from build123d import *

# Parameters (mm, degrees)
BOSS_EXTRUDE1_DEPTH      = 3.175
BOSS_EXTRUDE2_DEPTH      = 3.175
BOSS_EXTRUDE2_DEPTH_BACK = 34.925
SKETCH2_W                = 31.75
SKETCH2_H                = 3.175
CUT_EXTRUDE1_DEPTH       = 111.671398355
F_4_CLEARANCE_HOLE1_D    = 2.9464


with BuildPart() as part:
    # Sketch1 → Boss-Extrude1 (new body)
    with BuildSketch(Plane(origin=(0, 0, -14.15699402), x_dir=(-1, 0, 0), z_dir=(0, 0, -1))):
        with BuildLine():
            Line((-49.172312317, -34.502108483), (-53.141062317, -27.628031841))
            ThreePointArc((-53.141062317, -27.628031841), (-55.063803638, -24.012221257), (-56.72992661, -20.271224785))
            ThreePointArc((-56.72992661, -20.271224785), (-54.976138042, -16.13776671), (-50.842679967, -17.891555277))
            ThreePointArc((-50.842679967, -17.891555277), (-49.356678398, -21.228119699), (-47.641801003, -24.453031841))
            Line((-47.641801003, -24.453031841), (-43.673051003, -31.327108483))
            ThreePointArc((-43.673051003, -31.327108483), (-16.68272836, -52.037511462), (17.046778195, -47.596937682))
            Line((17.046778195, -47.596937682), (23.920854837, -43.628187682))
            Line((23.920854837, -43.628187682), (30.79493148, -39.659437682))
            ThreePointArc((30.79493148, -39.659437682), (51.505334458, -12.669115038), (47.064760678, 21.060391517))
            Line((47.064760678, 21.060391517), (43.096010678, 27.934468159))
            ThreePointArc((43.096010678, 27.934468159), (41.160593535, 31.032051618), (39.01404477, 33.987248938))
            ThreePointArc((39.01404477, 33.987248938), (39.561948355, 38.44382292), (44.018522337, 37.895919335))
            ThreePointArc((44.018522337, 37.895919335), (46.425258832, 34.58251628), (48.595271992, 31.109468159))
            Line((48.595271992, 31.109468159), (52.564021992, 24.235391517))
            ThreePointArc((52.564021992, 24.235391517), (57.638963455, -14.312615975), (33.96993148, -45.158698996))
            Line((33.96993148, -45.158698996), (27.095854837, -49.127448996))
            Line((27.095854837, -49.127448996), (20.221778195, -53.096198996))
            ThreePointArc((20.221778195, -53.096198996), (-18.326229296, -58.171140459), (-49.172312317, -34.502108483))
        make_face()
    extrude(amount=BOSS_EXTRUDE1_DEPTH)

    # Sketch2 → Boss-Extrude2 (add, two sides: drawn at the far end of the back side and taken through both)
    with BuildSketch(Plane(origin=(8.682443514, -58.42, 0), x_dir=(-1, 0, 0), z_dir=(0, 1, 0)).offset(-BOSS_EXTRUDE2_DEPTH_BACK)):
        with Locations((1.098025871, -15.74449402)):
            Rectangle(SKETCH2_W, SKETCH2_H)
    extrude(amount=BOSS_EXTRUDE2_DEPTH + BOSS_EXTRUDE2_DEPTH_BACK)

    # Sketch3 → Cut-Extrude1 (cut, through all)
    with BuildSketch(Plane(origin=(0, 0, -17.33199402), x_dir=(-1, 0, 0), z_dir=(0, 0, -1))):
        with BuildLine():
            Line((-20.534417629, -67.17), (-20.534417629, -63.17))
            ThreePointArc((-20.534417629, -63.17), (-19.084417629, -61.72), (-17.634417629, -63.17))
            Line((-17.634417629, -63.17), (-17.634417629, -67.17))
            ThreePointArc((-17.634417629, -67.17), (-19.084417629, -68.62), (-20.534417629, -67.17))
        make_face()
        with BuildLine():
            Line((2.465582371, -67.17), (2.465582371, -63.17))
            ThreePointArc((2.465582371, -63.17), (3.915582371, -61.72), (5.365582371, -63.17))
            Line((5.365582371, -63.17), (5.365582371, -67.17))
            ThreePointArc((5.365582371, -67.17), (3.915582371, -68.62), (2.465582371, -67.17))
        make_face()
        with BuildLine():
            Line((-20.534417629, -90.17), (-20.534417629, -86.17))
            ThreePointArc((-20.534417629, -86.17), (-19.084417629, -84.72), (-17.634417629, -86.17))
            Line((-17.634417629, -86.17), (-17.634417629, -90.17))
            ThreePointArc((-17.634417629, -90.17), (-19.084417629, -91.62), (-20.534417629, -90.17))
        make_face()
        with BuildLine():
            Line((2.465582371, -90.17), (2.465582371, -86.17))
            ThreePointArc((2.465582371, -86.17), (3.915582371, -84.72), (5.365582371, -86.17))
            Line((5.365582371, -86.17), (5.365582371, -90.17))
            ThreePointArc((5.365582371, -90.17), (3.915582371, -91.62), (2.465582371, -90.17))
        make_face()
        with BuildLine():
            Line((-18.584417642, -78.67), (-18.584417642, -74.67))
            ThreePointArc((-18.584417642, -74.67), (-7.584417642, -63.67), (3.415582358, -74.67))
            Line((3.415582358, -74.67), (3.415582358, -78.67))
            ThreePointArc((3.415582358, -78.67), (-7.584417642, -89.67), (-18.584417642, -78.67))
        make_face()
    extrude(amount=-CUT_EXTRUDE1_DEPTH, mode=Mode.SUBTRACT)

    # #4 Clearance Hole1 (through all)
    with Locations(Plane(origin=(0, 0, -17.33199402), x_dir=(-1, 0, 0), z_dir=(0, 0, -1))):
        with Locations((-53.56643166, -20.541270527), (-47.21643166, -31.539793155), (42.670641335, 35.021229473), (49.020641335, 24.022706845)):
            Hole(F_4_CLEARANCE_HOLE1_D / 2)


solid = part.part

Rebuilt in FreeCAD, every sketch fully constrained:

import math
import FreeCAD as App
import Part
import Sketcher

V = App.Vector
Q = App.Units.Quantity

doc = App.newDocument("Part")
params = doc.addObject("Spreadsheet::Sheet", "Params")
for row, (alias, value) in enumerate([
    ("sketch1_radius", "2 in"),
    ("sketch1_radius2", "1.75 in"),
    ("sketch1_radius3", "2.3125 in"),
    ("pad1_length", "0.125 in"),
    ("sketch2_width", "1.25 in"),
    ("sketch2_height", "0.125 in"),
    ("pad2_length", "0.125 in"),
    ("pad2_length2", "1.375 in"),
    ("sketch4_diameter", "0.116 in"),
    ("hole_diameter", "0.116 in"),
], start=1):
    params.set(f"A{row}", alias)
    params.set(f"B{row}", "=" + value)
    params.setAlias(f"B{row}", alias)

body = doc.addObject("PartDesign::Body", "Body")

# Sketch on XY plane
sketch1 = body.newObject("Sketcher::SketchObject", "Sketch")
sketch1.AttachmentSupport = (doc.getObject("XY_Plane"), [""])
sketch1.MapMode = "FlatFace"
sketch1.AttachmentOffset = App.Placement(V(0, 0, -14.156994), App.Rotation())
sketch1.addGeometry(Part.LineSegment(V(53.1, -27.6, 0), V(49.2, -34.5, 0)), False)
sketch1.addGeometry(Part.ArcOfCircle(Part.Circle(V(5.2, -9.1, 0), V(0, 0, 1), 50.8), math.radians(-120), math.radians(-30)), False)
sketch1.addGeometry(Part.LineSegment(V(-20.2, -53.1, 0), V(-27.1, -49.1, 0)), False)
sketch1.addGeometry(Part.LineSegment(V(-27.1, -49.1, 0), V(-34, -45.2, 0)), False)
sketch1.addGeometry(Part.ArcOfCircle(Part.Circle(V(-8.6, -1.2, 0), V(0, 0, 1), 50.8), math.radians(150), math.radians(240)), False)
sketch1.addGeometry(Part.LineSegment(V(-52.6, 24.2, 0), V(-48.6, 31.1, 0)), False)
sketch1.addGeometry(Part.ArcOfCircle(Part.Circle(V(2.3, 1.7, 0), V(0, 0, 1), 58.7), math.radians(142.01), math.radians(150)), False)
sketch1.addGeometry(Part.ArcOfCircle(Part.Circle(V(-41.5, 35.9, 0), V(0, 0, 1), 3.2), math.radians(-38), math.radians(142)), False)
sketch1.addGeometry(Part.ArcOfCircle(Part.Circle(V(2.3, 1.7, 0), V(0, 0, 1), 52.4), math.radians(142.01), math.radians(150)), False)
sketch1.addGeometry(Part.LineSegment(V(-43.1, 27.9, 0), V(-47.1, 21.1, 0)), False)
sketch1.addGeometry(Part.ArcOfCircle(Part.Circle(V(-8.6, -1.2, 0), V(0, 0, 1), 44.5), math.radians(150), math.radians(240)), False)
sketch1.addGeometry(Part.LineSegment(V(-30.8, -39.7, 0), V(-23.9, -43.6, 0)), False)
sketch1.addGeometry(Part.LineSegment(V(-23.9, -43.6, 0), V(-17, -47.6, 0)), False)
sketch1.addGeometry(Part.ArcOfCircle(Part.Circle(V(5.2, -9.1, 0), V(0, 0, 1), 44.5), math.radians(-120), math.radians(-30)), False)
sketch1.addGeometry(Part.LineSegment(V(43.7, -31.3, 0), V(47.6, -24.5, 0)), False)
sketch1.addGeometry(Part.ArcOfCircle(Part.Circle(V(2.3, 1.7, 0), V(0, 0, 1), 52.4), math.radians(-30), math.radians(-22.01)), False)
sketch1.addGeometry(Part.ArcOfCircle(Part.Circle(V(53.8, -19.1, 0), V(0, 0, 1), 3.2), math.radians(-22), math.radians(158)), False)
sketch1.addGeometry(Part.ArcOfCircle(Part.Circle(V(2.3, 1.7, 0), V(0, 0, 1), 58.7), math.radians(-30), math.radians(-22.01)), False)
sketch1.addConstraint(Sketcher.Constraint("Tangent", 0, 2, 1, 2))
sketch1.addConstraint(Sketcher.Constraint("Tangent", 1, 1, 2, 1))
sketch1.addConstraint(Sketcher.Constraint("Coincident", 2, 2, 3, 1))
sketch1.addConstraint(Sketcher.Constraint("Tangent", 3, 2, 4, 2))
sketch1.addConstraint(Sketcher.Constraint("Tangent", 4, 1, 5, 1))
sketch1.addConstraint(Sketcher.Constraint("Tangent", 5, 2, 6, 2))
sketch1.addConstraint(Sketcher.Constraint("Tangent", 6, 1, 7, 2))
sketch1.addConstraint(Sketcher.Constraint("Tangent", 7, 1, 8, 1))
sketch1.addConstraint(Sketcher.Constraint("Tangent", 8, 2, 9, 1))
sketch1.addConstraint(Sketcher.Constraint("Tangent", 9, 2, 10, 1))
sketch1.addConstraint(Sketcher.Constraint("Tangent", 10, 2, 11, 1))
sketch1.addConstraint(Sketcher.Constraint("Coincident", 11, 2, 12, 1))
sketch1.addConstraint(Sketcher.Constraint("Tangent", 12, 2, 13, 1))
sketch1.addConstraint(Sketcher.Constraint("Tangent", 13, 2, 14, 1))
sketch1.addConstraint(Sketcher.Constraint("Tangent", 14, 2, 15, 1))
sketch1.addConstraint(Sketcher.Constraint("Tangent", 15, 2, 16, 2))
sketch1.addConstraint(Sketcher.Constraint("Tangent", 16, 1, 17, 2))
sketch1.addConstraint(Sketcher.Constraint("Tangent", 17, 1, 0, 1))
sketch1.addConstraint(Sketcher.Constraint("Coincident", 8, 3, 6, 3))
sketch1.addConstraint(Sketcher.Constraint("Coincident", 10, 3, 4, 3))
sketch1.addConstraint(Sketcher.Constraint("Coincident", 13, 3, 1, 3))
sketch1.addConstraint(Sketcher.Constraint("Coincident", 15, 3, 6, 3))
sketch1.addConstraint(Sketcher.Constraint("Coincident", 17, 3, 6, 3))
sketch1.addConstraint(Sketcher.Constraint("Equal", 1, 4))
sketch1.addConstraint(Sketcher.Constraint("Equal", 10, 13))
sketch1.addConstraint(Sketcher.Constraint("Equal", 8, 15))
sketch1.addConstraint(Sketcher.Constraint("Equal", 7, 16))
sketch1.addConstraint(Sketcher.Constraint("Perpendicular", 0, 2))
sketch1.addConstraint(Sketcher.Constraint("Parallel", 2, 3))
sketch1.addConstraint(Sketcher.Constraint("Perpendicular", 3, 5))
sketch1.addConstraint(Sketcher.Constraint("Parallel", 5, 9))
sketch1.addConstraint(Sketcher.Constraint("Perpendicular", 9, 11))
sketch1.addConstraint(Sketcher.Constraint("Equal", 0, 2))
sketch1.addConstraint(Sketcher.Constraint("Equal", 2, 3))
sketch1.addConstraint(Sketcher.Constraint("Equal", 9, 11))
sketch1.addConstraint(Sketcher.Constraint("Radius", 1, Q("2 in")))
sketch1.addConstraint(Sketcher.Constraint("Radius", 10, Q("1.75 in")))
sketch1.addConstraint(Sketcher.Constraint("Angle", 0, Q("-120 deg")))
sketch1.addConstraint(Sketcher.Constraint("Radius", 6, Q("2.3125 in")))
sketch1.addConstraint(Sketcher.Constraint("DistanceY", 1, 1, -1, 1, 53.096199))
sketch1.addConstraint(Sketcher.Constraint("DistanceX", -1, 1, 14, 2, 47.641801))
sketch1.addConstraint(Sketcher.Constraint("DistanceX", 4, 1, 6, 1, 8.5455))
sketch1.addConstraint(Sketcher.Constraint("DistanceY", 16, 3, -1, 1, 19.08139))
sketch1.setExpression("Constraints[35]", "Params.sketch1_radius")
sketch1.setExpression("Constraints[36]", "Params.sketch1_radius2")
sketch1.setExpression("Constraints[38]", "Params.sketch1_radius3")
pad1 = body.newObject("PartDesign::Pad", "Pad")
pad1.Profile = sketch1
pad1.setExpression("Length", "Params.pad1_length")
pad1.Reversed = True

# Sketch on XZ plane
sketch2 = body.newObject("Sketcher::SketchObject", "Sketch001")
sketch2.AttachmentSupport = (doc.getObject("XZ_Plane"), [""])
sketch2.MapMode = "FlatFace"
sketch2.AttachmentOffset = App.Placement(V(0, 0, 2.3 * 25.4), App.Rotation())
sketch2.addGeometry(Part.LineSegment(V(23.5, -14.2, 0), V(23.5, -17.3, 0)), False)
sketch2.addGeometry(Part.LineSegment(V(23.5, -17.3, 0), V(-8.3, -17.3, 0)), False)
sketch2.addGeometry(Part.LineSegment(V(-8.3, -17.3, 0), V(-8.3, -14.2, 0)), False)
sketch2.addGeometry(Part.LineSegment(V(-8.3, -14.2, 0), V(23.5, -14.2, 0)), False)
sketch2.addConstraint(Sketcher.Constraint("Coincident", 0, 2, 1, 1))
sketch2.addConstraint(Sketcher.Constraint("Coincident", 1, 2, 2, 1))
sketch2.addConstraint(Sketcher.Constraint("Coincident", 2, 2, 3, 1))
sketch2.addConstraint(Sketcher.Constraint("Coincident", 3, 2, 0, 1))
sketch2.addConstraint(Sketcher.Constraint("Vertical", 0))
sketch2.addConstraint(Sketcher.Constraint("Horizontal", 1))
sketch2.addConstraint(Sketcher.Constraint("Vertical", 2))
sketch2.addConstraint(Sketcher.Constraint("Horizontal", 3))
sketch2.addConstraint(Sketcher.Constraint("DistanceX", 1, 2, 1, 1, Q("1.25 in")))
sketch2.addConstraint(Sketcher.Constraint("DistanceY", 0, 2, 0, 1, Q("0.125 in")))
sketch2.addConstraint(Sketcher.Constraint("DistanceX", -1, 1, 0, 2, 23.459418))
sketch2.addConstraint(Sketcher.Constraint("DistanceY", 0, 2, -1, 1, 17.331994))
sketch2.setExpression("Constraints[8]", "Params.sketch2_width")
sketch2.setExpression("Constraints[9]", "Params.sketch2_height")
pad2 = body.newObject("PartDesign::Pad", "Pad001")
pad2.Profile = sketch2
pad2.Type = "TwoLengths"
pad2.setExpression("Length", "Params.pad2_length")
pad2.setExpression("Length2", "Params.pad2_length2")
pad2.Reversed = True

# Sketch on XY plane
sketch3 = body.newObject("Sketcher::SketchObject", "Sketch002")
sketch3.AttachmentSupport = (doc.getObject("XY_Plane"), [""])
sketch3.MapMode = "FlatFace"
sketch3.AttachmentOffset = App.Placement(V(0, 0, -17.331994), App.Rotation())
sketch3.addGeometry(Part.LineSegment(V(20.5, -63.2, 0), V(20.5, -67.2, 0)), False)
sketch3.addGeometry(Part.ArcOfCircle(Part.Circle(V(19.1, -67.2, 0), V(0, 0, 1), 1.4), math.radians(180), math.radians(360)), False)
sketch3.addGeometry(Part.LineSegment(V(17.6, -67.2, 0), V(17.6, -63.2, 0)), False)
sketch3.addGeometry(Part.ArcOfCircle(Part.Circle(V(19.1, -63.2, 0), V(0, 0, 1), 1.4), math.radians(0), math.radians(180)), False)
sketch3.addGeometry(Part.LineSegment(V(-2.5, -63.2, 0), V(-2.5, -67.2, 0)), False)
sketch3.addGeometry(Part.ArcOfCircle(Part.Circle(V(-3.9, -67.2, 0), V(0, 0, 1), 1.4), math.radians(180), math.radians(360)), False)
sketch3.addGeometry(Part.LineSegment(V(-5.4, -67.2, 0), V(-5.4, -63.2, 0)), False)
sketch3.addGeometry(Part.ArcOfCircle(Part.Circle(V(-3.9, -63.2, 0), V(0, 0, 1), 1.4), math.radians(0), math.radians(180)), False)
sketch3.addGeometry(Part.LineSegment(V(20.5, -86.2, 0), V(20.5, -90.2, 0)), False)
sketch3.addGeometry(Part.ArcOfCircle(Part.Circle(V(19.1, -90.2, 0), V(0, 0, 1), 1.4), math.radians(180), math.radians(360)), False)
sketch3.addGeometry(Part.LineSegment(V(17.6, -90.2, 0), V(17.6, -86.2, 0)), False)
sketch3.addGeometry(Part.ArcOfCircle(Part.Circle(V(19.1, -86.2, 0), V(0, 0, 1), 1.4), math.radians(0), math.radians(180)), False)
sketch3.addGeometry(Part.LineSegment(V(-2.5, -86.2, 0), V(-2.5, -90.2, 0)), False)
sketch3.addGeometry(Part.ArcOfCircle(Part.Circle(V(-3.9, -90.2, 0), V(0, 0, 1), 1.4), math.radians(180), math.radians(360)), False)
sketch3.addGeometry(Part.LineSegment(V(-5.4, -90.2, 0), V(-5.4, -86.2, 0)), False)
sketch3.addGeometry(Part.ArcOfCircle(Part.Circle(V(-3.9, -86.2, 0), V(0, 0, 1), 1.4), math.radians(0), math.radians(180)), False)
sketch3.addGeometry(Part.LineSegment(V(18.6, -74.7, 0), V(18.6, -78.7, 0)), False)
sketch3.addGeometry(Part.ArcOfCircle(Part.Circle(V(7.6, -78.7, 0), V(0, 0, 1), 11), math.radians(180), math.radians(360)), False)
sketch3.addGeometry(Part.LineSegment(V(-3.4, -78.7, 0), V(-3.4, -74.7, 0)), False)
sketch3.addGeometry(Part.ArcOfCircle(Part.Circle(V(7.6, -74.7, 0), V(0, 0, 1), 11), math.radians(0), math.radians(180)), False)
sketch3.addConstraint(Sketcher.Constraint("Tangent", 0, 2, 1, 2))
sketch3.addConstraint(Sketcher.Constraint("Tangent", 1, 1, 2, 1))
sketch3.addConstraint(Sketcher.Constraint("Tangent", 2, 2, 3, 2))
sketch3.addConstraint(Sketcher.Constraint("Tangent", 3, 1, 0, 1))
sketch3.addConstraint(Sketcher.Constraint("Tangent", 4, 2, 5, 2))
sketch3.addConstraint(Sketcher.Constraint("Tangent", 5, 1, 6, 1))
sketch3.addConstraint(Sketcher.Constraint("Tangent", 6, 2, 7, 2))
sketch3.addConstraint(Sketcher.Constraint("Tangent", 7, 1, 4, 1))
sketch3.addConstraint(Sketcher.Constraint("Tangent", 8, 2, 9, 2))
sketch3.addConstraint(Sketcher.Constraint("Tangent", 9, 1, 10, 1))
sketch3.addConstraint(Sketcher.Constraint("Tangent", 10, 2, 11, 2))
sketch3.addConstraint(Sketcher.Constraint("Tangent", 11, 1, 8, 1))
sketch3.addConstraint(Sketcher.Constraint("Tangent", 12, 2, 13, 2))
sketch3.addConstraint(Sketcher.Constraint("Tangent", 13, 1, 14, 1))
sketch3.addConstraint(Sketcher.Constraint("Tangent", 14, 2, 15, 2))
sketch3.addConstraint(Sketcher.Constraint("Tangent", 15, 1, 12, 1))
sketch3.addConstraint(Sketcher.Constraint("Tangent", 16, 2, 17, 2))
sketch3.addConstraint(Sketcher.Constraint("Tangent", 17, 1, 18, 1))
sketch3.addConstraint(Sketcher.Constraint("Tangent", 18, 2, 19, 2))
sketch3.addConstraint(Sketcher.Constraint("Tangent", 19, 1, 16, 1))
sketch3.addConstraint(Sketcher.Constraint("Vertical", 0))
sketch3.addConstraint(Sketcher.Constraint("Vertical", 2))
sketch3.addConstraint(Sketcher.Constraint("Vertical", 4))
sketch3.addConstraint(Sketcher.Constraint("Vertical", 6))
sketch3.addConstraint(Sketcher.Constraint("Vertical", 8))
sketch3.addConstraint(Sketcher.Constraint("Vertical", 10))
sketch3.addConstraint(Sketcher.Constraint("Vertical", 12))
sketch3.addConstraint(Sketcher.Constraint("Vertical", 14))
sketch3.addConstraint(Sketcher.Constraint("Vertical", 16))
sketch3.addConstraint(Sketcher.Constraint("Vertical", 18))
sketch3.addConstraint(Sketcher.Constraint("Equal", 3, 5))
sketch3.addConstraint(Sketcher.Constraint("Equal", 7, 9))
sketch3.addConstraint(Sketcher.Constraint("Equal", 11, 13))
sketch3.addConstraint(Sketcher.Constraint("Horizontal", 1, 3, 5, 3))
sketch3.addConstraint(Sketcher.Constraint("Horizontal", 3, 3, 7, 3))
sketch3.addConstraint(Sketcher.Constraint("Horizontal", 9, 3, 13, 3))
sketch3.addConstraint(Sketcher.Constraint("Horizontal", 11, 3, 15, 3))
sketch3.addConstraint(Sketcher.Constraint("Vertical", 3, 3, 9, 3))
sketch3.addConstraint(Sketcher.Constraint("Vertical", 7, 3, 13, 3))
sketch3.addConstraint(Sketcher.Constraint("Equal", 6, 8))
sketch3.addConstraint(Sketcher.Constraint("Equal", 14, 16))
sketch3.addConstraint(Sketcher.Constraint("DistanceY", 9, 3, -1, 1, Q("3.55 in")))
sketch3.addConstraint(Sketcher.Constraint("Radius", 1, 1.45))
sketch3.addConstraint(Sketcher.Constraint("Radius", 17, 11.0))
sketch3.addConstraint(Sketcher.Constraint("DistanceY", 0, 2, 0, 1, 4.0))
sketch3.addConstraint(Sketcher.Constraint("DistanceY", 1, 3, -1, 1, 67.17))
sketch3.addConstraint(Sketcher.Constraint("DistanceY", 17, 3, -1, 1, 78.67))
sketch3.addConstraint(Sketcher.Constraint("DistanceX", 5, 3, 1, 3, 23.0))
sketch3.addConstraint(Sketcher.Constraint("DistanceX", 17, 3, 11, 3, 11.5))
sketch3.addConstraint(Sketcher.Constraint("DistanceX", -1, 1, 1, 3, 19.084418))
pocket1 = body.newObject("PartDesign::Pocket", "Pocket")
pocket1.Profile = sketch3
pocket1.Type = "ThroughAll"
pocket1.Reversed = True

# Sketch on XY plane
sketch4 = body.newObject("Sketcher::SketchObject", "Sketch003")
sketch4.AttachmentSupport = (doc.getObject("XY_Plane"), [""])
sketch4.MapMode = "FlatFace"
sketch4.AttachmentOffset = App.Placement(V(0, 0, -17.331994), App.Rotation())
sketch4.addGeometry(Part.Circle(V(53.6, -20.5, 0), V(0, 0, 1), 1.5), False)
sketch4.addGeometry(Part.Circle(V(47.2, -31.5, 0), V(0, 0, 1), 1.5), False)
sketch4.addGeometry(Part.Circle(V(-42.7, 35, 0), V(0, 0, 1), 1.5), False)
sketch4.addGeometry(Part.Circle(V(-49, 24, 0), V(0, 0, 1), 1.5), False)
sketch4.addConstraint(Sketcher.Constraint("Equal", 0, 1))
sketch4.addConstraint(Sketcher.Constraint("Equal", 1, 2))
sketch4.addConstraint(Sketcher.Constraint("Equal", 2, 3))
sketch4.addConstraint(Sketcher.Constraint("Diameter", 0, Q("0.116 in")))
sketch4.addConstraint(Sketcher.Constraint("DistanceX", 1, 3, 0, 3, Q("0.25 in")))
sketch4.addConstraint(Sketcher.Constraint("DistanceX", 3, 3, 2, 3, Q("0.25 in")))
sketch4.addConstraint(Sketcher.Constraint("DistanceY", 0, 3, 2, 3, Q("2.1875 in")))
sketch4.addConstraint(Sketcher.Constraint("DistanceY", 1, 3, 3, 3, Q("2.1875 in")))
sketch4.addConstraint(Sketcher.Constraint("DistanceX", -1, 1, 0, 3, 53.566432))
sketch4.addConstraint(Sketcher.Constraint("DistanceY", 0, 3, -1, 1, 20.541271))
sketch4.addConstraint(Sketcher.Constraint("DistanceX", 2, 3, -1, 1, 42.670641))
sketch4.addConstraint(Sketcher.Constraint("DistanceY", 1, 3, -1, 1, 31.539793))
sketch4.setExpression("Constraints[3]", "Params.sketch4_diameter")
doc.recompute()
hole = body.newObject("PartDesign::Hole", "Hole")
hole.Profile = sketch4
hole.ThreadType = "None"
hole.setExpression("Diameter", "Params.hole_diameter")
hole.DepthType = "ThroughAll"
hole.Reversed = True

doc.recompute()
